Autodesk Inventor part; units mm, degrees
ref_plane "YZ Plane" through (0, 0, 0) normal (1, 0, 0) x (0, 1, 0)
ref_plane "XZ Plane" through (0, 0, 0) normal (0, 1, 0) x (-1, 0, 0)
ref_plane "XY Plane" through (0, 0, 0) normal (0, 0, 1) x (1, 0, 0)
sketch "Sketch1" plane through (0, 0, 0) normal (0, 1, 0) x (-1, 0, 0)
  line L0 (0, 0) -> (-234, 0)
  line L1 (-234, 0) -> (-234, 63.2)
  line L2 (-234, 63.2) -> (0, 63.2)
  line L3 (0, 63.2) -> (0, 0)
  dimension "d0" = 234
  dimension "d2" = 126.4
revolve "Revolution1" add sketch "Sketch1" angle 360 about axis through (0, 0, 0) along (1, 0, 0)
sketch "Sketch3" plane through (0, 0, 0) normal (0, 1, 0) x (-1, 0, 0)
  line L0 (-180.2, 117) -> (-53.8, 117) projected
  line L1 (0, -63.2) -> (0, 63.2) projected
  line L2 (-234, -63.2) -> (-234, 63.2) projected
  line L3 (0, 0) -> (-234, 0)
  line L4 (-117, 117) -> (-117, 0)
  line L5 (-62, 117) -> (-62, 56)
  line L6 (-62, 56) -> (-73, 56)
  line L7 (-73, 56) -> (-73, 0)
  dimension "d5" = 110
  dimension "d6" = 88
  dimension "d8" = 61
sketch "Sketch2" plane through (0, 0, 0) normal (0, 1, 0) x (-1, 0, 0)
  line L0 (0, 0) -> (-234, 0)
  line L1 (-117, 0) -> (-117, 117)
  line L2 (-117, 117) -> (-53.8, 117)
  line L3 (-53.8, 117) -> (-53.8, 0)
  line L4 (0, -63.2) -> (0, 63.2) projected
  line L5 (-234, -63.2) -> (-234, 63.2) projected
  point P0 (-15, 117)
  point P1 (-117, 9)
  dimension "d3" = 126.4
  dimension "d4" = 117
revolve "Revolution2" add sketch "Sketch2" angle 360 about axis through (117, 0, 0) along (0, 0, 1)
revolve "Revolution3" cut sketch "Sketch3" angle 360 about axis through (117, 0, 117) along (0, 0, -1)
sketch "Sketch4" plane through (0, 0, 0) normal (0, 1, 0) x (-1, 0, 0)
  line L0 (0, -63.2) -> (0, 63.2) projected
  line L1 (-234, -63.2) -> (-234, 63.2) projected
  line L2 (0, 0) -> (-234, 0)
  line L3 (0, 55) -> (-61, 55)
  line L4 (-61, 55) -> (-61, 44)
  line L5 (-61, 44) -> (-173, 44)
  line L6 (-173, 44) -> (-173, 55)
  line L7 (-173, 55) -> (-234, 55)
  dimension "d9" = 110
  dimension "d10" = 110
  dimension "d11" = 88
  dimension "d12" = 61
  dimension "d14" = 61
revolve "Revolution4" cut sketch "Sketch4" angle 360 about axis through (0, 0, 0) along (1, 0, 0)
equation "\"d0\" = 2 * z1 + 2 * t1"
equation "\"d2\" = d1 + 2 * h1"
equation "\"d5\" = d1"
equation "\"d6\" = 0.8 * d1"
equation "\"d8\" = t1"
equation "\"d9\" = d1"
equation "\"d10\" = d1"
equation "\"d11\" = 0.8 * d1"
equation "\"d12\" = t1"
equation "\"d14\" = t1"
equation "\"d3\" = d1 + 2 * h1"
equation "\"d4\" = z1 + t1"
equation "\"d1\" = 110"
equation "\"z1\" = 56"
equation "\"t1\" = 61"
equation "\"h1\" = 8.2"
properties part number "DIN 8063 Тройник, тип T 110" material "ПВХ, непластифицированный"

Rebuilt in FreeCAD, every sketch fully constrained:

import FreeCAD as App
import Part
import Sketcher

V = App.Vector


def add_polygon(sketch, points):
    """Adds a closed chain of lines whose ends are joined by coincident constraints."""
    first, n = sketch.GeometryCount, len(points)
    for a, b in zip(points, points[1:] + points[:1]):
        sketch.addGeometry(Part.LineSegment(App.Vector(*a, 0), App.Vector(*b, 0)), False)
    for i in range(n):
        sketch.addConstraint(Sketcher.Constraint("Coincident", first + i, 2, first + (i + 1) % n, 1))

doc = App.newDocument("Part")
params = doc.addObject("Spreadsheet::Sheet", "Params")
for row, (alias, value) in enumerate([
    ("sketch1_width", "234 mm"),
    ("sketch1_height", "63.2 mm"),
    ("revolution_angle", "360 deg"),
    ("sketch2_height", "117 mm"),
    ("sketch2_width", "63.2 mm"),
    ("revolution2_angle", "360 deg"),
    ("sketch3_height", "61 mm"),
    ("sketch3_width", "55 mm"),
    ("sketch3_width2", "44 mm"),
    ("sketch3_height2", "117 mm"),
    ("groove_angle", "360 deg"),
    ("sketch4_width", "61 mm"),
    ("sketch4_width2", "234 mm"),
    ("sketch4_height", "55 mm"),
    ("sketch4_height2", "11 mm"),
    ("groove2_angle", "360 deg"),
], start=1):
    params.set(f"A{row}", alias)
    params.set(f"B{row}", "=" + value)
    params.setAlias(f"B{row}", alias)

body = doc.addObject("PartDesign::Body", "Body")

sketch1 = body.newObject("Sketcher::SketchObject", "Sketch")
sketch1.AttachmentSupport = (doc.getObject("XZ_Plane"), [""])
sketch1.MapMode = "FlatFace"
add_polygon(sketch1, [(234, 0), (0, 0), (0, 63), (234, 63)])
sketch1.addConstraint([
    Sketcher.Constraint("Horizontal", 0),
    Sketcher.Constraint("Vertical", 1),
    Sketcher.Constraint("Horizontal", 2),
    Sketcher.Constraint("Vertical", 3),
    Sketcher.Constraint("Coincident", 0, 2, -1, 1),
    Sketcher.Constraint("DistanceX", 0, 2, 0, 1, 234.0),
    Sketcher.Constraint("DistanceY", 1, 1, 1, 2, 63.2),
])
sketch1.setExpression("Constraints[9]", "Params.sketch1_width")
sketch1.setExpression("Constraints[10]", "Params.sketch1_height")
revolution = body.newObject("PartDesign::Revolution", "Revolution")
revolution.Profile = sketch1
revolution.ReferenceAxis = (sketch1, ["H_Axis"])
revolution.setExpression("Angle", "Params.revolution_angle")

sketch2 = body.newObject("Sketcher::SketchObject", "Sketch001")
sketch2.AttachmentSupport = (doc.getObject("XZ_Plane"), [""])
sketch2.MapMode = "FlatFace"
add_polygon(sketch2, [(117, 0), (54, 0), (54, 117), (117, 117)])
sketch2.addGeometry(Part.LineSegment(V(117, 0, 0), V(117, 117, 0)), True)
sketch2.addConstraint([
    Sketcher.Constraint("Horizontal", 0),
    Sketcher.Constraint("Vertical", 1),
    Sketcher.Constraint("Horizontal", 2),
    Sketcher.Constraint("Vertical", 3),
    Sketcher.Constraint("Vertical", 4),
    Sketcher.Constraint("Coincident", 4, 1, 3, 2),
    Sketcher.Constraint("PointOnObject", 0, 2, -1),
    Sketcher.Constraint("Horizontal", 1, 2, 4, 2),
    Sketcher.Constraint("DistanceY", 1, 1, 1, 2, 117.0),
    Sketcher.Constraint("DistanceX", -1, 1, 2, 2, 117.0),
    Sketcher.Constraint("DistanceX", 0, 2, 0, 1, 63.2),
])
sketch2.setExpression("Constraints[12]", "Params.sketch2_height")
sketch2.setExpression("Constraints[14]", "Params.sketch2_width")
revolution2 = body.newObject("PartDesign::Revolution", "Revolution001")
revolution2.Profile = sketch2
revolution2.ReferenceAxis = (sketch2, ["Axis0"])
revolution2.setExpression("Angle", "Params.revolution2_angle")

sketch3 = body.newObject("Sketcher::SketchObject", "Sketch002")
sketch3.AttachmentSupport = (doc.getObject("XZ_Plane"), [""])
sketch3.MapMode = "FlatFace"
add_polygon(sketch3, [(62, 117), (117, 117), (117, 0), (73, 0), (73, 56), (62, 56)])
sketch3.addGeometry(Part.LineSegment(V(117, 117, 0), V(117, 0, 0)), True)
sketch3.addConstraint([
    Sketcher.Constraint("Horizontal", 0),
    Sketcher.Constraint("Vertical", 1),
    Sketcher.Constraint("Horizontal", 2),
    Sketcher.Constraint("Vertical", 3),
    Sketcher.Constraint("Horizontal", 4),
    Sketcher.Constraint("Vertical", 5),
    Sketcher.Constraint("Vertical", 6),
    Sketcher.Constraint("Coincident", 6, 1, 0, 2),
    Sketcher.Constraint("PointOnObject", 1, 2, -1),
    Sketcher.Constraint("PointOnObject", 6, 2, -1),
    Sketcher.Constraint("DistanceY", 5, 1, 5, 2, 61.0),
    Sketcher.Constraint("DistanceX", 0, 1, 0, 2, 55.0),
    Sketcher.Constraint("DistanceX", 2, 2, 2, 1, 44.0),
    Sketcher.Constraint("DistanceY", 1, 2, 1, 1, 117.0),
    Sketcher.Constraint("DistanceX", -1, 1, 0, 2, 117.0),
])
sketch3.setExpression("Constraints[16]", "Params.sketch3_height")
sketch3.setExpression("Constraints[17]", "Params.sketch3_width")
sketch3.setExpression("Constraints[18]", "Params.sketch3_width2")
sketch3.setExpression("Constraints[19]", "Params.sketch3_height2")
groove = body.newObject("PartDesign::Groove", "Groove")
groove.Profile = sketch3
groove.ReferenceAxis = (sketch3, ["Axis0"])
groove.setExpression("Angle", "Params.groove_angle")

sketch4 = body.newObject("Sketcher::SketchObject", "Sketch003")
sketch4.AttachmentSupport = (doc.getObject("XZ_Plane"), [""])
sketch4.MapMode = "FlatFace"
add_polygon(sketch4, [(234, 0), (0, 0), (0, 55), (61, 55), (61, 44), (173, 44), (173, 55), (234, 55)])
sketch4.addConstraint([
    Sketcher.Constraint("Horizontal", 0),
    Sketcher.Constraint("Vertical", 1),
    Sketcher.Constraint("Horizontal", 2),
    Sketcher.Constraint("Vertical", 3),
    Sketcher.Constraint("Horizontal", 4),
    Sketcher.Constraint("Vertical", 5),
    Sketcher.Constraint("Horizontal", 6),
    Sketcher.Constraint("Vertical", 7),
    Sketcher.Constraint("Coincident", 0, 2, -1, 1),
    Sketcher.Constraint("Horizontal", 2, 2, 5, 2),
    Sketcher.Constraint("Equal", 2, 6),
    Sketcher.Constraint("DistanceX", 2, 1, 2, 2, 61.0),
    Sketcher.Constraint("DistanceX", 0, 2, 0, 1, 234.0),
    Sketcher.Constraint("DistanceY", 1, 1, 1, 2, 55.0),
    Sketcher.Constraint("DistanceY", 3, 2, 3, 1, 11.0),
])
sketch4.setExpression("Constraints[19]", "Params.sketch4_width")
sketch4.setExpression("Constraints[20]", "Params.sketch4_width2")
sketch4.setExpression("Constraints[21]", "Params.sketch4_height")
sketch4.setExpression("Constraints[22]", "Params.sketch4_height2")
groove2 = body.newObject("PartDesign::Groove", "Groove001")
groove2.Profile = sketch4
groove2.ReferenceAxis = (sketch4, ["H_Axis"])
groove2.setExpression("Angle", "Params.groove2_angle")

doc.recompute()
